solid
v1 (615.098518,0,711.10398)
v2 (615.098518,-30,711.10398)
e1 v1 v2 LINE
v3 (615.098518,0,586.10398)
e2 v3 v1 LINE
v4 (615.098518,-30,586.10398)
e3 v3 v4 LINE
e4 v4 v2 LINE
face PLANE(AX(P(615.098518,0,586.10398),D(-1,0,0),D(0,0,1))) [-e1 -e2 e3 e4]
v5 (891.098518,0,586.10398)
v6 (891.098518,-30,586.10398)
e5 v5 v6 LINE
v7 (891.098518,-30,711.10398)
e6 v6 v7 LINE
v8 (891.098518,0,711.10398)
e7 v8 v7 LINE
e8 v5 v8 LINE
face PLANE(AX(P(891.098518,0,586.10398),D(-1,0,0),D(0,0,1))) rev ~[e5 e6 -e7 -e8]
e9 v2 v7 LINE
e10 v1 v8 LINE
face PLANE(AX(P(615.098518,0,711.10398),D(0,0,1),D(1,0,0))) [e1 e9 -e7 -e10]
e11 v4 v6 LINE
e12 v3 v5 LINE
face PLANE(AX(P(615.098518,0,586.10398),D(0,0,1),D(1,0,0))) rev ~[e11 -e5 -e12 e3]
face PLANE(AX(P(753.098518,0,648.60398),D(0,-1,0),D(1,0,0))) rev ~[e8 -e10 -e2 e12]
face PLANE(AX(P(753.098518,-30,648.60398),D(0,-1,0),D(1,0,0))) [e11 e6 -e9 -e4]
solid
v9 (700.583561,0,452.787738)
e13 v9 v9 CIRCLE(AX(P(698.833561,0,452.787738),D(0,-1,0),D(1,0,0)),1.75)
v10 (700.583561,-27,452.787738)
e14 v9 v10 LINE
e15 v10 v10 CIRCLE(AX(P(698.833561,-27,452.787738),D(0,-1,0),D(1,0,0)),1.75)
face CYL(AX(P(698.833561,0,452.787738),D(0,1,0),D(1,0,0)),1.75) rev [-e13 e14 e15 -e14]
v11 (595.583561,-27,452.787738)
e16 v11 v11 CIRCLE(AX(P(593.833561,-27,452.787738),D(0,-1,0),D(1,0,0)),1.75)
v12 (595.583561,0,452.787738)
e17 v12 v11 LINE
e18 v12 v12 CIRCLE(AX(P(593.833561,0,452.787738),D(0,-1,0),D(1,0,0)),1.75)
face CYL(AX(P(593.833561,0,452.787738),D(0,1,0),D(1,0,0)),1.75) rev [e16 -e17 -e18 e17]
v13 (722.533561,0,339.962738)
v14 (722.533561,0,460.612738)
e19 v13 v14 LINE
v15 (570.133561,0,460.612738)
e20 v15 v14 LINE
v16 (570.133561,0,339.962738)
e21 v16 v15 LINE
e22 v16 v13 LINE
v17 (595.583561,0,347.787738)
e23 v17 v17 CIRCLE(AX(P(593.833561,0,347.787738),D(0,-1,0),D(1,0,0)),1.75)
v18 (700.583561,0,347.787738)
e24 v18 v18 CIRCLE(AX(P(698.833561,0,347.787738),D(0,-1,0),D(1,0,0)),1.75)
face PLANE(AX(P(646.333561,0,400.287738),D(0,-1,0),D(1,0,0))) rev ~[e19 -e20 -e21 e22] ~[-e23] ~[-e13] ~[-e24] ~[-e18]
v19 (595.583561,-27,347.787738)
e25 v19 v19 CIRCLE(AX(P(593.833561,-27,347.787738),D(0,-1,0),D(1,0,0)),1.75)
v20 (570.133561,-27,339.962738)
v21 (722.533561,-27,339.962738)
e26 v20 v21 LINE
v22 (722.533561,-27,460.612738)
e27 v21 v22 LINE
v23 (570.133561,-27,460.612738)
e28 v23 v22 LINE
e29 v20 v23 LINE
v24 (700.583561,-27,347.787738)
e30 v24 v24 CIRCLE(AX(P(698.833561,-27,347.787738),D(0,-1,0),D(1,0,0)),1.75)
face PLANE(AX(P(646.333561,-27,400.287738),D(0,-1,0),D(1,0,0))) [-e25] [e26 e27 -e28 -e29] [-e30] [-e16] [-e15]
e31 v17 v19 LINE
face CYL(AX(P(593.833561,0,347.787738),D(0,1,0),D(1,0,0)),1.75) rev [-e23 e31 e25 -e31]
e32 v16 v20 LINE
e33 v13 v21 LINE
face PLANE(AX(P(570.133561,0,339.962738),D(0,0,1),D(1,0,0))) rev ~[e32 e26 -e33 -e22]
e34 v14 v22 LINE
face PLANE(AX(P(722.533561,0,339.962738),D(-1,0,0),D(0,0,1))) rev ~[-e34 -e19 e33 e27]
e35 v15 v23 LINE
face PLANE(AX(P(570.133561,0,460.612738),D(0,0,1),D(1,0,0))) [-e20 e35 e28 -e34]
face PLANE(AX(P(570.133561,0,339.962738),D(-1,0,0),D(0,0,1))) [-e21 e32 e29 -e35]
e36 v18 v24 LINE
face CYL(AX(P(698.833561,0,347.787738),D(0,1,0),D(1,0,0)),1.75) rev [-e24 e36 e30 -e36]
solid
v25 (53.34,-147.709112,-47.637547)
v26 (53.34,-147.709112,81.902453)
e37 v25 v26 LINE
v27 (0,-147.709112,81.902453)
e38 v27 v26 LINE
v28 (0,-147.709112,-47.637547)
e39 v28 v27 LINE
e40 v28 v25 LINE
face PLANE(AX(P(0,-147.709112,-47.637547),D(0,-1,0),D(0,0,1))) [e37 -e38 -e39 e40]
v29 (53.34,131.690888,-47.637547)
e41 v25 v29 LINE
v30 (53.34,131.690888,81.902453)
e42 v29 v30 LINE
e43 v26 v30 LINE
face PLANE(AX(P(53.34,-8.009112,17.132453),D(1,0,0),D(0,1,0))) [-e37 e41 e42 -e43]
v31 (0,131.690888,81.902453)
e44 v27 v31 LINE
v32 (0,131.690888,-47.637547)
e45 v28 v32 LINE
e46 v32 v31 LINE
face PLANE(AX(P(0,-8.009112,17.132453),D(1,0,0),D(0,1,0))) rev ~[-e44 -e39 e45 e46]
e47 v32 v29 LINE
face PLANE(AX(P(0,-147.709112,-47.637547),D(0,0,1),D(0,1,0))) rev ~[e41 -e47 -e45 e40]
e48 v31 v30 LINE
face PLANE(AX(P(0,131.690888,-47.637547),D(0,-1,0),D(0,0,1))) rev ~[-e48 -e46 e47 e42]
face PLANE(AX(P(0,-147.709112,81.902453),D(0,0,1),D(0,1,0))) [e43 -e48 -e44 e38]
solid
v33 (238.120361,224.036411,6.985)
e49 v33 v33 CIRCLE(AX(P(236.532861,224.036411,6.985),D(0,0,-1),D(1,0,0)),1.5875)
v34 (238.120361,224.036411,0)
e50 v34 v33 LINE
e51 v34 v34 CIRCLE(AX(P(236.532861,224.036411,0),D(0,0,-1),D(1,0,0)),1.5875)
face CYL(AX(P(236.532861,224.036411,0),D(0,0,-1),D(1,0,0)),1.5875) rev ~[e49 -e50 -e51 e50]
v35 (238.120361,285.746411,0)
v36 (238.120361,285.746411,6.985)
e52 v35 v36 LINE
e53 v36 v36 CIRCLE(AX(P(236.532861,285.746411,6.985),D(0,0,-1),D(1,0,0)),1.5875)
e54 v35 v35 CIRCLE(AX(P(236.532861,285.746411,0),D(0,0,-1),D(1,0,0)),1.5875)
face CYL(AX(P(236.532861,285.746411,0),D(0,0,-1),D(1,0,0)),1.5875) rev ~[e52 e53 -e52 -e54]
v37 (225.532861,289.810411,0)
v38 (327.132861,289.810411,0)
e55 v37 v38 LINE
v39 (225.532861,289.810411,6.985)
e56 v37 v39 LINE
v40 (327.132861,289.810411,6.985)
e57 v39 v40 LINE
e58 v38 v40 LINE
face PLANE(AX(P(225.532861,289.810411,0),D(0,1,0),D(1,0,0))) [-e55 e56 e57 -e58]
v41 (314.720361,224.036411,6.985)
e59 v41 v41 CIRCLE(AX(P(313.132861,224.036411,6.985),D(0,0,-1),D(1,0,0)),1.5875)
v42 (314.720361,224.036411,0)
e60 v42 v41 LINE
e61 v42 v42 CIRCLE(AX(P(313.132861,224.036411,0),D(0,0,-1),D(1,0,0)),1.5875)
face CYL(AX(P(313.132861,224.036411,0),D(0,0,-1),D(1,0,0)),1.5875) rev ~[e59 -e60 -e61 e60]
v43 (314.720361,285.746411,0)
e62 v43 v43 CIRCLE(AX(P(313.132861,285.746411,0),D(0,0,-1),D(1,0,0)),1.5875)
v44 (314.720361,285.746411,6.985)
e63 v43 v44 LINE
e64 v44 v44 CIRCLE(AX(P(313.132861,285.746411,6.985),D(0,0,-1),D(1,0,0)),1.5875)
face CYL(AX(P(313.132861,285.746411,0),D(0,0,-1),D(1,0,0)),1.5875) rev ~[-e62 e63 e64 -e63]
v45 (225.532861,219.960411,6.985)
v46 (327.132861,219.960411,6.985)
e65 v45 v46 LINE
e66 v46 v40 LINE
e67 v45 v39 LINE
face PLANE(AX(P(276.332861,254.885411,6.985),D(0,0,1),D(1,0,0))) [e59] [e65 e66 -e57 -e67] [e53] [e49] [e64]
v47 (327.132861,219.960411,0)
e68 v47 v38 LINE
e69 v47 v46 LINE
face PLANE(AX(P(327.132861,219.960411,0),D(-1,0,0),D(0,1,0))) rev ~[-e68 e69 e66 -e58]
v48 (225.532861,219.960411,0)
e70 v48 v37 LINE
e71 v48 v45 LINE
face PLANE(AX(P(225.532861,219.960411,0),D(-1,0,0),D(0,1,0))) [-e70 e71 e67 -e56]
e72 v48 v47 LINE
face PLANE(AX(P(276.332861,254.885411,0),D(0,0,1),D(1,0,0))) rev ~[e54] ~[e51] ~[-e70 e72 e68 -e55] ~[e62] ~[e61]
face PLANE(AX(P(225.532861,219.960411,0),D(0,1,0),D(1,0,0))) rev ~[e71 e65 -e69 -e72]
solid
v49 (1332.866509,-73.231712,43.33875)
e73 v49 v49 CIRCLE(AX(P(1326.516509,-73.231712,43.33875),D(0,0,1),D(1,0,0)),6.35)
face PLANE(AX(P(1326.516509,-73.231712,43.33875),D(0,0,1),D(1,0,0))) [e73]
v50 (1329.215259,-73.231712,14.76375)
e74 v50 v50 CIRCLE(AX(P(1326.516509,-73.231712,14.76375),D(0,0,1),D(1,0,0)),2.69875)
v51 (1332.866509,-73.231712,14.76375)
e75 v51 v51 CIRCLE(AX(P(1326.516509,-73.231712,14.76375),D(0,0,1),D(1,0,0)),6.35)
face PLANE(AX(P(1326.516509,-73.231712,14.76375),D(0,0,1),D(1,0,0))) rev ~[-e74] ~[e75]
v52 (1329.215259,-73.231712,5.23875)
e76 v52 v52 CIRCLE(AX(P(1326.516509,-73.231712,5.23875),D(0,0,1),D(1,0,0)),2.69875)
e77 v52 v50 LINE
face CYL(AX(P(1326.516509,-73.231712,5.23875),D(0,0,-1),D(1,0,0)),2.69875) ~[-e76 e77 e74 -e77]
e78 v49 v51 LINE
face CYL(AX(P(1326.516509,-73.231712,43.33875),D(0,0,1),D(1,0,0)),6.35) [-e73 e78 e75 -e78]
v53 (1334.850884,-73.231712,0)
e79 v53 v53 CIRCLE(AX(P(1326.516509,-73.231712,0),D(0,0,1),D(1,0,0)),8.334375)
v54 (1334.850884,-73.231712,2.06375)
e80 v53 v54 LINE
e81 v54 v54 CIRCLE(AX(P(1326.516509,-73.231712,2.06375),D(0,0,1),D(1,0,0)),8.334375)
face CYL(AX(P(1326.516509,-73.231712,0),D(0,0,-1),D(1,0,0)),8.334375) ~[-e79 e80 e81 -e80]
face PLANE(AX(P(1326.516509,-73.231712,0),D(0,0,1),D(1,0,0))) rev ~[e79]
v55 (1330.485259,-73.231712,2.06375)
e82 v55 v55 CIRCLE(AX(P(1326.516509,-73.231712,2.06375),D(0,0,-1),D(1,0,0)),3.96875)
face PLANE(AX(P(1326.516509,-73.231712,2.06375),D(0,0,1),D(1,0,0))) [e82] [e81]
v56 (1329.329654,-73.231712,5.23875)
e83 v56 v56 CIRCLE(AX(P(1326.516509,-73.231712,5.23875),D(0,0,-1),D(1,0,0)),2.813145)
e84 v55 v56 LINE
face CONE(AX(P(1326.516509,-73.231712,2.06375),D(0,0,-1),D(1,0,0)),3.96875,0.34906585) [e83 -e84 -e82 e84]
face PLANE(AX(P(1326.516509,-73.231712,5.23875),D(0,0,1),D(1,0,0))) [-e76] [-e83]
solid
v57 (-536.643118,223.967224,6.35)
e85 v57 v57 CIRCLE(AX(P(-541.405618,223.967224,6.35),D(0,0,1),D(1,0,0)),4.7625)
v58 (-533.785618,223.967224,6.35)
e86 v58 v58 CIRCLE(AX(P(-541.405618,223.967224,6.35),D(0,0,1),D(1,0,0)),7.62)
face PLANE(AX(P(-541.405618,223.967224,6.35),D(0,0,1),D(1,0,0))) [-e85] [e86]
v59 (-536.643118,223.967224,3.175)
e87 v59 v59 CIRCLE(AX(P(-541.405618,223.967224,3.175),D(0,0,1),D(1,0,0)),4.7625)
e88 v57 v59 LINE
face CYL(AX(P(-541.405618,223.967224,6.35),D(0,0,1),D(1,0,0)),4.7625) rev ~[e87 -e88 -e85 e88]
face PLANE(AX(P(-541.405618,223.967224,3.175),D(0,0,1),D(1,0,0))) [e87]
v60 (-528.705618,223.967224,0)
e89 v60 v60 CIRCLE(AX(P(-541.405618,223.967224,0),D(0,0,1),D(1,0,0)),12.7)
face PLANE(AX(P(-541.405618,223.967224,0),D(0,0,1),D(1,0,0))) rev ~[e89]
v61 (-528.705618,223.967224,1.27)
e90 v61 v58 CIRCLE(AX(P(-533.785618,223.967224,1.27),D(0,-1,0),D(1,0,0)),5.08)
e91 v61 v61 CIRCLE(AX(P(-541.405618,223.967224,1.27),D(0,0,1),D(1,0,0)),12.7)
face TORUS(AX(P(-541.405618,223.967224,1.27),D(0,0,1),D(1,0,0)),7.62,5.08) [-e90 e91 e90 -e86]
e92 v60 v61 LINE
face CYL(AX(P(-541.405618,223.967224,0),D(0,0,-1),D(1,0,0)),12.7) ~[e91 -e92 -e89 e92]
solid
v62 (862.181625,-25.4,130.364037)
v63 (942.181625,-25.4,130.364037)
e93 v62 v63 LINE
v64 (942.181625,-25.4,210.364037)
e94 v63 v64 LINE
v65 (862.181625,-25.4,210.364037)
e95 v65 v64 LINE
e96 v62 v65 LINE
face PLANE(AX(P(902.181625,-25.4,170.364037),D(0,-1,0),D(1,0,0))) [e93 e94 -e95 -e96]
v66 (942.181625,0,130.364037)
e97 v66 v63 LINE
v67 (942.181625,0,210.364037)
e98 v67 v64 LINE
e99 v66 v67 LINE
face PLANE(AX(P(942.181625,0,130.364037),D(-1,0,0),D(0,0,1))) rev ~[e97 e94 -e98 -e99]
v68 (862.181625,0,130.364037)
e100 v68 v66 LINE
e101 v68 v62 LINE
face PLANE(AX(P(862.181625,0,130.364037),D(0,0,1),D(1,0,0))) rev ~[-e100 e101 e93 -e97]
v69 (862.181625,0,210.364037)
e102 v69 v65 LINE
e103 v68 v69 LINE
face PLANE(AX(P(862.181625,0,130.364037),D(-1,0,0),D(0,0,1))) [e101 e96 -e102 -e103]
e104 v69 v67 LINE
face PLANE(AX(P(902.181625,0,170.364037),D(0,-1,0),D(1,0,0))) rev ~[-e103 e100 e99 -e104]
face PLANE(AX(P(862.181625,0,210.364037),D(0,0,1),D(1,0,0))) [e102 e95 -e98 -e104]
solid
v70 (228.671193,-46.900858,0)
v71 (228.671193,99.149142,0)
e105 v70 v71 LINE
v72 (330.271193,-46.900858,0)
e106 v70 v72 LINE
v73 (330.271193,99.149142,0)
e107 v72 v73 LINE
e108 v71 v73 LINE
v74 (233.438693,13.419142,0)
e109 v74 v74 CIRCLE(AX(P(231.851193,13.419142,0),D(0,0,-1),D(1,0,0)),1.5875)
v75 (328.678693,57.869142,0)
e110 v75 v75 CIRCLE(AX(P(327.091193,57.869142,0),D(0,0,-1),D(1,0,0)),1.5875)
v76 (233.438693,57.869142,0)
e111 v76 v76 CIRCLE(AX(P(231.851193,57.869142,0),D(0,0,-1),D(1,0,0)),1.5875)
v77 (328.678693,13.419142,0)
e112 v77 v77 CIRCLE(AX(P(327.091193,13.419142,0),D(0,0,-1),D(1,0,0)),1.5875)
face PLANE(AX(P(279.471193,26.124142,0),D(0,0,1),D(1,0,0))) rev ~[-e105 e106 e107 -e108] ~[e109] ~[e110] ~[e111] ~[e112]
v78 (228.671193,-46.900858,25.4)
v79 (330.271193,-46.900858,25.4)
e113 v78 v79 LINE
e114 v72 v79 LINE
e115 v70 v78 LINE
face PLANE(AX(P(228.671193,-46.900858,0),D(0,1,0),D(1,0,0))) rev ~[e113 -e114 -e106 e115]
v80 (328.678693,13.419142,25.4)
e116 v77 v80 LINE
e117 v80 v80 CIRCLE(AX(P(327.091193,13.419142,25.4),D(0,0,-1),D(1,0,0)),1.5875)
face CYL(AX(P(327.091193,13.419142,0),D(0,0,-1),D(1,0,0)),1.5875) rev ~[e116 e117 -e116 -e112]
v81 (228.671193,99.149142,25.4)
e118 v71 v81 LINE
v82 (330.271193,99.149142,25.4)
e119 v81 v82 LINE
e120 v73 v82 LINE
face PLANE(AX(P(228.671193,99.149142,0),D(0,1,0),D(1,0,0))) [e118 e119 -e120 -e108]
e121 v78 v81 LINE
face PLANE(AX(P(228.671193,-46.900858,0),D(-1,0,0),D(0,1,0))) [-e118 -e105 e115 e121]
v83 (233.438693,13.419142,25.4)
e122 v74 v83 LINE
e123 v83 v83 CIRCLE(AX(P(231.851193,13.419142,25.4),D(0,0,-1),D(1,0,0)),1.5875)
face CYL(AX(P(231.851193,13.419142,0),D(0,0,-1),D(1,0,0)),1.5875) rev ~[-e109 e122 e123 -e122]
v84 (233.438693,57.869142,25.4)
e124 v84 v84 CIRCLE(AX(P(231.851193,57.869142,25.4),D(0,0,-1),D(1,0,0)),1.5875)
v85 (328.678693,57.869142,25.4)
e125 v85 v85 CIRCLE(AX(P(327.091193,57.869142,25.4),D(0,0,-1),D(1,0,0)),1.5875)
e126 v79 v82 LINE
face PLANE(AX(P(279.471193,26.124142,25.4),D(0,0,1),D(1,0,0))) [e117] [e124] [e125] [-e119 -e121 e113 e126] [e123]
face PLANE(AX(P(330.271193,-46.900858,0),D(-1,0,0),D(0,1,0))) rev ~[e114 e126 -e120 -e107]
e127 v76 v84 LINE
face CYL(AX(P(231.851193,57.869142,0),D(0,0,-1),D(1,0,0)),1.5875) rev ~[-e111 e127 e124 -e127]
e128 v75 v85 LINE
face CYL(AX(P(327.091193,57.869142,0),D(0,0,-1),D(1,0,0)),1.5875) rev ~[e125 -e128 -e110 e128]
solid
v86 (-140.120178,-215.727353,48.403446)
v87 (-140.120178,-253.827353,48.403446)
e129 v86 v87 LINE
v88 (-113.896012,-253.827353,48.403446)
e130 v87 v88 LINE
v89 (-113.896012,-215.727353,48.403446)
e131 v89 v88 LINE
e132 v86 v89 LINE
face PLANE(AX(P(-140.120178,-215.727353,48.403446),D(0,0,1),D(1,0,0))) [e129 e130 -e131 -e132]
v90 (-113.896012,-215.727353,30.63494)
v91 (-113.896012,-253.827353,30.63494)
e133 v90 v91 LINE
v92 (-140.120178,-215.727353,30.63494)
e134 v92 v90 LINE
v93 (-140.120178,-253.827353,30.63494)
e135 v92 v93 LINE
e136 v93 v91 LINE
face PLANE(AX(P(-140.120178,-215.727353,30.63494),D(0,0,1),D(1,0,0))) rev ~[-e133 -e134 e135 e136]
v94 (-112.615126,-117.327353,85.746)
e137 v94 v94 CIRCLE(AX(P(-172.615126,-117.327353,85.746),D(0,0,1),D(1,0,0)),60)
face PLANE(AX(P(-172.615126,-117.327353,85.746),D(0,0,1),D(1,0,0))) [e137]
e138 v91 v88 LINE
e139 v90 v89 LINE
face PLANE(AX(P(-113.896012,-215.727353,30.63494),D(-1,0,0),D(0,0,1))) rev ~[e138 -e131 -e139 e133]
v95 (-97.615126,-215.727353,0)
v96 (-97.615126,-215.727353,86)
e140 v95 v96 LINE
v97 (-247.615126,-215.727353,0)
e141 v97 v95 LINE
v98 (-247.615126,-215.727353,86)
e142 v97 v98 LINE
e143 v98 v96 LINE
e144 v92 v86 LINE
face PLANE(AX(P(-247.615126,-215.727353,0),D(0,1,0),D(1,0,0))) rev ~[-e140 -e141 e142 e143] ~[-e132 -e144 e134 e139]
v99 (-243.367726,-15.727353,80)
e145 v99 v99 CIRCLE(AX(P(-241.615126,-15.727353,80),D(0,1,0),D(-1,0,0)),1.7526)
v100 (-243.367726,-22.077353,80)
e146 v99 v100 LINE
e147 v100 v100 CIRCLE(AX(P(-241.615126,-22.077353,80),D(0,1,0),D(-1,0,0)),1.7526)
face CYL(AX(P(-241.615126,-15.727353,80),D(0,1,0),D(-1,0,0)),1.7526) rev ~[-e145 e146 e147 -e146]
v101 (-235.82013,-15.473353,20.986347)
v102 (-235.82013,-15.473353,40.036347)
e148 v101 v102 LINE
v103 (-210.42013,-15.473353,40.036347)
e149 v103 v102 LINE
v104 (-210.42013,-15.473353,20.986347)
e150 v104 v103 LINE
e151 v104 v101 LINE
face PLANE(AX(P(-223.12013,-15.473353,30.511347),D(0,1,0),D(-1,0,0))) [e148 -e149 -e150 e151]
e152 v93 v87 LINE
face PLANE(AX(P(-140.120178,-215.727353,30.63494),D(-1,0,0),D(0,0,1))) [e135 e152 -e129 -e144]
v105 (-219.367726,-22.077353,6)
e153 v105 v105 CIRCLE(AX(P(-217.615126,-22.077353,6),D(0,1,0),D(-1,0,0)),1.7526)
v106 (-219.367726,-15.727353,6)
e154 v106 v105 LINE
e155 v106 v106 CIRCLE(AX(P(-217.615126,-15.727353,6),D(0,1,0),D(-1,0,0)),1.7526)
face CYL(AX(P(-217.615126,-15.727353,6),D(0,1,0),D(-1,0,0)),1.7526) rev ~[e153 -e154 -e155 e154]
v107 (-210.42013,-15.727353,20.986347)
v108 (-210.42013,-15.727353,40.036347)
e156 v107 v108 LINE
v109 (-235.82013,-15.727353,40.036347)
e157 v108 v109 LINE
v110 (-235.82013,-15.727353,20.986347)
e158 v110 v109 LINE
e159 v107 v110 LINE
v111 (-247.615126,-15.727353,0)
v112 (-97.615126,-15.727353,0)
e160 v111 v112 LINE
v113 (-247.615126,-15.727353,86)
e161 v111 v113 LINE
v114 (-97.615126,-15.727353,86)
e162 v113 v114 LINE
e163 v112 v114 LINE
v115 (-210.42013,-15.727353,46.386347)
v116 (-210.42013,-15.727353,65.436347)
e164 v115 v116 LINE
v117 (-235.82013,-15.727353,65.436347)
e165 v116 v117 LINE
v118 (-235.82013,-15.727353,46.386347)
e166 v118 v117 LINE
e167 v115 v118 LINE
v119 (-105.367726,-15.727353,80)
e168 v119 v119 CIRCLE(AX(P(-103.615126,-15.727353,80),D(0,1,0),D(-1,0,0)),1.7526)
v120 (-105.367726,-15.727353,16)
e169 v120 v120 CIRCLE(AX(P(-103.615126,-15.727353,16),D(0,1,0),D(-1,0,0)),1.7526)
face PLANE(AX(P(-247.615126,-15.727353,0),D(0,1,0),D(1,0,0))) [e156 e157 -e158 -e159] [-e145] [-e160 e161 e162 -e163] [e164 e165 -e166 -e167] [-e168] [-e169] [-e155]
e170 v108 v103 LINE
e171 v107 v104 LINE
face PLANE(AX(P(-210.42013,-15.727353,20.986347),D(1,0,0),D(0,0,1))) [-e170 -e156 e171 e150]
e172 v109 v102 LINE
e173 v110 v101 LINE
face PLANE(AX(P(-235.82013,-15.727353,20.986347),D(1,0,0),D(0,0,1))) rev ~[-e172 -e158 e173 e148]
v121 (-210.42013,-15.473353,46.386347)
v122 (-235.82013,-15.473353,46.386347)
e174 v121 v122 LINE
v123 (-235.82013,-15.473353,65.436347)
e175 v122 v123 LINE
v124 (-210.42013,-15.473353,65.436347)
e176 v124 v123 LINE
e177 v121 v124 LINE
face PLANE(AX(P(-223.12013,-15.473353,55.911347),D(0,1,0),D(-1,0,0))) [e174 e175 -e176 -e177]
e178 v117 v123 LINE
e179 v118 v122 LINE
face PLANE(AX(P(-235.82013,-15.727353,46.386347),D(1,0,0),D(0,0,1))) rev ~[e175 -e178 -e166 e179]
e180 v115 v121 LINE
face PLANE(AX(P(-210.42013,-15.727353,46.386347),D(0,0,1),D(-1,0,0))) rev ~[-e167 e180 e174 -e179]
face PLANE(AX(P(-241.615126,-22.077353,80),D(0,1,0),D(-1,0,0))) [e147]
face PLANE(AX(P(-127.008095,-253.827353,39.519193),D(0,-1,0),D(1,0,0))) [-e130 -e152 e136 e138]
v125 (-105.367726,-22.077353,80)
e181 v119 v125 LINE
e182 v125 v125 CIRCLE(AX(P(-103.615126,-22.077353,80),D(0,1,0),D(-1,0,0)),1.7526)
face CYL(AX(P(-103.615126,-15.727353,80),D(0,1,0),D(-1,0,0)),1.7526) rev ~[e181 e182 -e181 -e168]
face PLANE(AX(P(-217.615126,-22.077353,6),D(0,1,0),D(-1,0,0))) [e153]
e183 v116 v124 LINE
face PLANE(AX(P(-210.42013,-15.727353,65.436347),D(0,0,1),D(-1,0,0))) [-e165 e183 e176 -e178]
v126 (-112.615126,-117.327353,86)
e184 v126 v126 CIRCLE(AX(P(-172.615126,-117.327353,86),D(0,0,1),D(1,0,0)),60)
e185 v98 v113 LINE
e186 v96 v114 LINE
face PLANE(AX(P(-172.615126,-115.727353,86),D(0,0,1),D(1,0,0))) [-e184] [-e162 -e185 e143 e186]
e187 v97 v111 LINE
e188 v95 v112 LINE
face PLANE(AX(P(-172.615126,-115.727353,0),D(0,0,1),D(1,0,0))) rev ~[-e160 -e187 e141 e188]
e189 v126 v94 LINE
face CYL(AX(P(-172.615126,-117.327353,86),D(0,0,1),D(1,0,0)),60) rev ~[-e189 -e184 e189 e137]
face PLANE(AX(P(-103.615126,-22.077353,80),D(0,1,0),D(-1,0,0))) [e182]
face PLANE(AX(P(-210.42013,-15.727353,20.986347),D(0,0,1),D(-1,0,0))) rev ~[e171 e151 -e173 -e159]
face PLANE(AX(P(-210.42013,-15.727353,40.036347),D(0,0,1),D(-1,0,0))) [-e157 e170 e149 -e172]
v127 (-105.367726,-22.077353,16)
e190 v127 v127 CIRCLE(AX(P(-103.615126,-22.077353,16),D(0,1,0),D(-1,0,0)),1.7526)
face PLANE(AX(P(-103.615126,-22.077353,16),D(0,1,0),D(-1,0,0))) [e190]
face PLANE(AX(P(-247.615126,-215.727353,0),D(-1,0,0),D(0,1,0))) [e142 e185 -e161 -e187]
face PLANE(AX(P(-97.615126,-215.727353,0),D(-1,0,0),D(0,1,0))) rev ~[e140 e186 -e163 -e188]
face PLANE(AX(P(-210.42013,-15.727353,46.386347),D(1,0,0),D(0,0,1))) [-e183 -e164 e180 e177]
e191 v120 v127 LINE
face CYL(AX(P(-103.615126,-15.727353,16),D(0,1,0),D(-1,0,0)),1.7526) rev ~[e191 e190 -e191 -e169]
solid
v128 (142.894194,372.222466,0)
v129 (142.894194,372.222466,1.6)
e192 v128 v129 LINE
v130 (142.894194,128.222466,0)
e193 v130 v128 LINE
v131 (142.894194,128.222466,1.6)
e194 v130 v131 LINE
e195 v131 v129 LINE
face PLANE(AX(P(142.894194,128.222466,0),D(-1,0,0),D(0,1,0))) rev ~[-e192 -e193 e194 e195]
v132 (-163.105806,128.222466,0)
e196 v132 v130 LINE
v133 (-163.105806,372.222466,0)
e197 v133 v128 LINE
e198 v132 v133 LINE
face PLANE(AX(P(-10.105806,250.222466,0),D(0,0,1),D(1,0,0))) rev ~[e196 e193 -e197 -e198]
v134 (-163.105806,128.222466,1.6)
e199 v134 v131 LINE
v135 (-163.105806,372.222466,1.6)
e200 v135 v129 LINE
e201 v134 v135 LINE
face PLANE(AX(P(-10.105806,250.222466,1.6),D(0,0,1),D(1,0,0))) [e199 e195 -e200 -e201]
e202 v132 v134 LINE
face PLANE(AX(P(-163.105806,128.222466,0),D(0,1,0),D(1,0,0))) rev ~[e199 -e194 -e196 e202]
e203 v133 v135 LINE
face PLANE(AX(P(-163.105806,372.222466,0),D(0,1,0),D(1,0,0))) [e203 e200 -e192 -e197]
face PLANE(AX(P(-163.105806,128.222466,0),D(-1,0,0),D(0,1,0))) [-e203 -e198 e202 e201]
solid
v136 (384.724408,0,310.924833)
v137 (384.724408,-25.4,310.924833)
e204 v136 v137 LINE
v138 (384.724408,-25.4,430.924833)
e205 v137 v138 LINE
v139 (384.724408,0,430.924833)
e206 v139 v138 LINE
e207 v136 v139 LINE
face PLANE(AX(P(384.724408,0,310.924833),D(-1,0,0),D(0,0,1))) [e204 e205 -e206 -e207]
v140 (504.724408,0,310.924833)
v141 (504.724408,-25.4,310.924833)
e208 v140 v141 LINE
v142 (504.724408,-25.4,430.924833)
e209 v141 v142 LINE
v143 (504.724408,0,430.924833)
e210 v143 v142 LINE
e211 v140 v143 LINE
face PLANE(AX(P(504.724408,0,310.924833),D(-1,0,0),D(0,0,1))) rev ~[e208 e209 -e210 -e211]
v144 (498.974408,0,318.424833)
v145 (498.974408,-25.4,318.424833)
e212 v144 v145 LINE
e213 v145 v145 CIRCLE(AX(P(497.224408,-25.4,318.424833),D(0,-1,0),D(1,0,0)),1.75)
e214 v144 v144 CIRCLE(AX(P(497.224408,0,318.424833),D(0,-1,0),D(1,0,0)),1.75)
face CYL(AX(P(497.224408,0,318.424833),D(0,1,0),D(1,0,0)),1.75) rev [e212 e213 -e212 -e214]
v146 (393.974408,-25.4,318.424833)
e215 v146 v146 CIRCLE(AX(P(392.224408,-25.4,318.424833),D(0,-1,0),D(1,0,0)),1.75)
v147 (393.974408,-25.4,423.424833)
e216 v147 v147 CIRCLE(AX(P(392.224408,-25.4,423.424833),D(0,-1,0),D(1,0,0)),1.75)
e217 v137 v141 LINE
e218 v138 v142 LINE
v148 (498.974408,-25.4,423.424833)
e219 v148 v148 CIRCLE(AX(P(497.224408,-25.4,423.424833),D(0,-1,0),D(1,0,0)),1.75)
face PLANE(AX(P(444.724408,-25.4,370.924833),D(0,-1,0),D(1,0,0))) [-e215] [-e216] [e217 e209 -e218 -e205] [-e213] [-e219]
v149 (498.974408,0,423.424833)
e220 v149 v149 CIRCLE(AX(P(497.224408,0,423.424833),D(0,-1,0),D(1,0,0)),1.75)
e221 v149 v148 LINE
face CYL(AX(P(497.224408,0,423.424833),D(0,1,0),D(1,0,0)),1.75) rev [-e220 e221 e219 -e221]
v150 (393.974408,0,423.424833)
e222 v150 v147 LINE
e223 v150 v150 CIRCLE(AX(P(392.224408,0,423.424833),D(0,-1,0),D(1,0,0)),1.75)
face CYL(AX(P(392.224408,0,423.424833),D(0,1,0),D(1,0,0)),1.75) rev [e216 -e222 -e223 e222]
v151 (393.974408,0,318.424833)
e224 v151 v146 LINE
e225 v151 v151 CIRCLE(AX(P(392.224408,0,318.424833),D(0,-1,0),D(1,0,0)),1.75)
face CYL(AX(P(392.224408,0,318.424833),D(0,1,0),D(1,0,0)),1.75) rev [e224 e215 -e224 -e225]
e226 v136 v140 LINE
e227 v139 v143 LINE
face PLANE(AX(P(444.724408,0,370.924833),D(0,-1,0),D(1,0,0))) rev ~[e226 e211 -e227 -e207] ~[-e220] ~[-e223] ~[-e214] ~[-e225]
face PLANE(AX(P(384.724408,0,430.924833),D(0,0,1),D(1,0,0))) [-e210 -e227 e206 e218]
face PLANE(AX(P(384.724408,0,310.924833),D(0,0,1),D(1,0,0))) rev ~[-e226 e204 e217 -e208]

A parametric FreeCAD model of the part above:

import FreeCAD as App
import Part
import Sketcher
from FreeCAD import Vector
Q = App.Units.Quantity


def edges_at(feature, points):
    """Names of the edges that pass closest to the given points."""
    edges = feature.Shape.Edges
    near = lambda p: min(range(len(edges)), key=lambda i: edges[i].distToShape(Part.Vertex(*p))[0])
    return sorted({f"Edge{near(p) + 1}" for p in points})

doc = App.newDocument("Part")
body = doc.addObject("PartDesign::Body", "Body")

# Sketch on XY plane
sketch1 = body.newObject("Sketcher::SketchObject", "Sketch")
sketch1.AttachmentSupport = (doc.getObject("XY_Plane"), [""])
sketch1.MapMode = "FlatFace"
sketch1.addGeometry([
    Part.LineSegment(Vector(-163.105806, 372.222466, 0), Vector(-163.105806, 128.222466, 0)),
    Part.LineSegment(Vector(-163.105806, 128.222466, 0), Vector(142.894194, 128.222466, 0)),
    Part.LineSegment(Vector(142.894194, 128.222466, 0), Vector(142.894194, 372.222466, 0)),
    Part.LineSegment(Vector(142.894194, 372.222466, 0), Vector(-163.105806, 372.222466, 0)),
], False)
sketch1.addConstraint([
    Sketcher.Constraint("Coincident", 0, 2, 1, 1),
    Sketcher.Constraint("Coincident", 1, 2, 2, 1),
    Sketcher.Constraint("Coincident", 2, 2, 3, 1),
    Sketcher.Constraint("Coincident", 3, 2, 0, 1),
    Sketcher.Constraint("Vertical", 0),
    Sketcher.Constraint("Horizontal", 1),
    Sketcher.Constraint("Vertical", 2),
    Sketcher.Constraint("Horizontal", 3),
    Sketcher.Constraint("DistanceX", 1, 1, 1, 2, Q("306 mm")),
    Sketcher.Constraint("DistanceY", 0, 2, 0, 1, Q("244 mm")),
    Sketcher.Constraint("DistanceX", 0, 2, -1, 1, Q("163.105806 mm")),
    Sketcher.Constraint("DistanceY", -1, 1, 0, 2, Q("128.222466 mm")),
])
pad1 = body.newObject("PartDesign::Pad", "Pad")
pad1.Profile = sketch1
pad1.Length = 1.6
body2 = doc.addObject("PartDesign::Body", "Body001")

# Sketch on YZ plane
sketch2 = body2.newObject("Sketcher::SketchObject", "Sketch001")
sketch2.AttachmentSupport = (doc.getObject("YZ_Plane001"), [""])
sketch2.MapMode = "FlatFace"
sketch2.addGeometry([
    Part.LineSegment(Vector(-147.709112, 81.902453, 0), Vector(-147.709112, -47.637547, 0)),
    Part.LineSegment(Vector(-147.709112, -47.637547, 0), Vector(131.690888, -47.637547, 0)),
    Part.LineSegment(Vector(131.690888, -47.637547, 0), Vector(131.690888, 81.902453, 0)),
    Part.LineSegment(Vector(131.690888, 81.902453, 0), Vector(-147.709112, 81.902453, 0)),
], False)
sketch2.addConstraint([
    Sketcher.Constraint("Coincident", 0, 2, 1, 1),
    Sketcher.Constraint("Coincident", 1, 2, 2, 1),
    Sketcher.Constraint("Coincident", 2, 2, 3, 1),
    Sketcher.Constraint("Coincident", 3, 2, 0, 1),
    Sketcher.Constraint("Vertical", 0),
    Sketcher.Constraint("Horizontal", 1),
    Sketcher.Constraint("Vertical", 2),
    Sketcher.Constraint("Horizontal", 3),
    Sketcher.Constraint("DistanceX", 1, 1, 1, 2, Q("11 in")),
    Sketcher.Constraint("DistanceY", 0, 2, 0, 1, Q("5.1 in")),
    Sketcher.Constraint("DistanceX", 0, 2, -1, 1, Q("147.709112 mm")),
    Sketcher.Constraint("DistanceY", 0, 2, -1, 1, Q("47.637547 mm")),
])
pad2 = body2.newObject("PartDesign::Pad", "Pad001")
pad2.Profile = sketch2
pad2.Length = Q("2.1 in")
body3 = doc.addObject("PartDesign::Body", "Body002")

# Sketch on XY plane
sketch3 = body3.newObject("Sketcher::SketchObject", "Sketch002")
sketch3.AttachmentSupport = (doc.getObject("XY_Plane002"), [""])
sketch3.MapMode = "FlatFace"
sketch3.addGeometry([
    Part.LineSegment(Vector(-247.615126, -15.727353, 0), Vector(-247.615126, -215.727353, 0)),
    Part.LineSegment(Vector(-247.615126, -215.727353, 0), Vector(-97.615126, -215.727353, 0)),
    Part.LineSegment(Vector(-97.615126, -215.727353, 0), Vector(-97.615126, -15.727353, 0)),
    Part.LineSegment(Vector(-97.615126, -15.727353, 0), Vector(-247.615126, -15.727353, 0)),
], False)
sketch3.addConstraint([
    Sketcher.Constraint("Coincident", 0, 2, 1, 1),
    Sketcher.Constraint("Coincident", 1, 2, 2, 1),
    Sketcher.Constraint("Coincident", 2, 2, 3, 1),
    Sketcher.Constraint("Coincident", 3, 2, 0, 1),
    Sketcher.Constraint("Vertical", 0),
    Sketcher.Constraint("Horizontal", 1),
    Sketcher.Constraint("Vertical", 2),
    Sketcher.Constraint("Horizontal", 3),
    Sketcher.Constraint("DistanceX", 1, 1, 1, 2, Q("150 mm")),
    Sketcher.Constraint("DistanceY", 0, 2, 0, 1, Q("200 mm")),
    Sketcher.Constraint("DistanceX", 0, 2, -1, 1, Q("247.615126 mm")),
    Sketcher.Constraint("DistanceY", 0, 2, -1, 1, Q("215.727353 mm")),
])
pad3 = body3.newObject("PartDesign::Pad", "Pad002")
pad3.Profile = sketch3
pad3.Length = 86

# Sketch on XZ plane
sketch4 = body3.newObject("Sketcher::SketchObject", "Sketch003")
sketch4.AttachmentSupport = (doc.getObject("XZ_Plane002"), [""])
sketch4.MapMode = "FlatFace"
sketch4.AttachmentOffset = App.Placement(Vector(0, 0, 15.727353), App.Rotation())
sketch4.addGeometry([
    Part.Circle(Vector(-103.615126, 80, 0), Vector(0, 0, 1), 1.7526),
    Part.Circle(Vector(-103.615126, 16, 0), Vector(0, 0, 1), 1.7526),
    Part.Circle(Vector(-217.615126, 6, 0), Vector(0, 0, 1), 1.7526),
    Part.Circle(Vector(-241.615126, 80, 0), Vector(0, 0, 1), 1.7526),
], False)
sketch4.addConstraint([
    Sketcher.Constraint("Equal", 0, 1),
    Sketcher.Constraint("Equal", 1, 2),
    Sketcher.Constraint("Equal", 2, 3),
    Sketcher.Constraint("Horizontal", 0, 3, 3, 3),
    Sketcher.Constraint("Vertical", 0, 3, 1, 3),
    Sketcher.Constraint("Diameter", 0, Q("0.138 in")),
    Sketcher.Constraint("DistanceY", -1, 1, 0, 3, Q("80 mm")),
    Sketcher.Constraint("DistanceY", -1, 1, 1, 3, Q("16 mm")),
    Sketcher.Constraint("DistanceY", -1, 1, 2, 3, Q("6 mm")),
    Sketcher.Constraint("DistanceX", 2, 3, 1, 3, Q("114 mm")),
    Sketcher.Constraint("DistanceX", 3, 3, 2, 3, Q("24 mm")),
    Sketcher.Constraint("DistanceX", 0, 3, -1, 1, Q("103.615126 mm")),
])
pocket1 = body3.newObject("PartDesign::Pocket", "Pocket")
pocket1.Profile = sketch4
pocket1.Length = Q("0.25 in")
pocket1.Reversed = True

# Sketch on XY plane
sketch5 = body3.newObject("Sketcher::SketchObject", "Sketch004")
sketch5.AttachmentSupport = (doc.getObject("XY_Plane002"), [""])
sketch5.MapMode = "FlatFace"
sketch5.AttachmentOffset = App.Placement(Vector(0, 0, 86), App.Rotation())
sketch5.addGeometry(Part.Circle(Vector(-172.615126, -117.327353, 0), Vector(0, 0, 1), 60), False)
sketch5.addConstraint([
    Sketcher.Constraint("Diameter", 0, Q("120 mm")),
    Sketcher.Constraint("DistanceX", 0, 3, -1, 1, Q("172.615126 mm")),
    Sketcher.Constraint("DistanceY", 0, 3, -1, 1, Q("117.327353 mm")),
])
pocket2 = body3.newObject("PartDesign::Pocket", "Pocket001")
pocket2.Profile = sketch5
pocket2.Length = Q("0.01 in")

# Sketch on XZ plane
sketch6 = body3.newObject("Sketcher::SketchObject", "Sketch005")
sketch6.AttachmentSupport = (doc.getObject("XZ_Plane002"), [""])
sketch6.MapMode = "FlatFace"
sketch6.AttachmentOffset = App.Placement(Vector(0, 0, 15.727353), App.Rotation())
sketch6.addGeometry([
    Part.LineSegment(Vector(-210.42013, 40.036347, 0), Vector(-210.42013, 20.986347, 0)),  # 0
    Part.LineSegment(Vector(-210.42013, 20.986347, 0), Vector(-235.82013, 20.986347, 0)),  # 1
    Part.LineSegment(Vector(-235.82013, 20.986347, 0), Vector(-235.82013, 40.036347, 0)),  # 2
    Part.LineSegment(Vector(-235.82013, 40.036347, 0), Vector(-210.42013, 40.036347, 0)),  # 3
    Part.LineSegment(Vector(-210.42013, 65.436347, 0), Vector(-210.42013, 46.386347, 0)),  # 4
    Part.LineSegment(Vector(-210.42013, 46.386347, 0), Vector(-235.82013, 46.386347, 0)),  # 5
    Part.LineSegment(Vector(-235.82013, 46.386347, 0), Vector(-235.82013, 65.436347, 0)),  # 6
    Part.LineSegment(Vector(-235.82013, 65.436347, 0), Vector(-210.42013, 65.436347, 0)),  # 7
], False)
sketch6.addConstraint([
    Sketcher.Constraint("Coincident", 0, 2, 1, 1),
    Sketcher.Constraint("Coincident", 1, 2, 2, 1),
    Sketcher.Constraint("Coincident", 2, 2, 3, 1),
    Sketcher.Constraint("Coincident", 3, 2, 0, 1),
    Sketcher.Constraint("Coincident", 4, 2, 5, 1),
    Sketcher.Constraint("Coincident", 5, 2, 6, 1),
    Sketcher.Constraint("Coincident", 6, 2, 7, 1),
    Sketcher.Constraint("Coincident", 7, 2, 4, 1),
    Sketcher.Constraint("Vertical", 0),
    Sketcher.Constraint("Horizontal", 1),
    Sketcher.Constraint("Vertical", 2),
    Sketcher.Constraint("Horizontal", 3),
    Sketcher.Constraint("Vertical", 4),
    Sketcher.Constraint("Horizontal", 5),
    Sketcher.Constraint("Vertical", 6),
    Sketcher.Constraint("Horizontal", 7),
    Sketcher.Constraint("Vertical", 3, 2, 4, 2),
    Sketcher.Constraint("Vertical", 2, 2, 5, 2),
    Sketcher.Constraint("Equal", 2, 4),
    Sketcher.Constraint("DistanceX", 1, 2, 1, 1, Q("1 in")),
    Sketcher.Constraint("DistanceY", 0, 2, 4, 2, Q("1 in")),
    Sketcher.Constraint("DistanceY", 0, 2, 0, 1, Q("0.75 in")),
    Sketcher.Constraint("DistanceX", 0, 2, -1, 1, Q("210.42013 mm")),
    Sketcher.Constraint("DistanceY", -1, 1, 0, 2, Q("20.986347 mm")),
])
pad4 = body3.newObject("PartDesign::Pad", "Pad003")
pad4.Profile = sketch6
pad4.Length = Q("0.01 in")
pad4.Reversed = True

# Sketch on XZ plane
sketch7 = body3.newObject("Sketcher::SketchObject", "Sketch006")
sketch7.AttachmentSupport = (doc.getObject("XZ_Plane002"), [""])
sketch7.MapMode = "FlatFace"
sketch7.AttachmentOffset = App.Placement(Vector(0, 0, 215.727353), App.Rotation())
sketch7.addGeometry([
    Part.LineSegment(Vector(-140.120178, 48.403446, 0), Vector(-140.120178, 30.63494, 0)),
    Part.LineSegment(Vector(-140.120178, 30.63494, 0), Vector(-113.896012, 30.63494, 0)),
    Part.LineSegment(Vector(-113.896012, 30.63494, 0), Vector(-113.896012, 48.403446, 0)),
    Part.LineSegment(Vector(-113.896012, 48.403446, 0), Vector(-140.120178, 48.403446, 0)),
], False)
sketch7.addConstraint([
    Sketcher.Constraint("Coincident", 0, 2, 1, 1),
    Sketcher.Constraint("Coincident", 1, 2, 2, 1),
    Sketcher.Constraint("Coincident", 2, 2, 3, 1),
    Sketcher.Constraint("Coincident", 3, 2, 0, 1),
    Sketcher.Constraint("Vertical", 0),
    Sketcher.Constraint("Horizontal", 1),
    Sketcher.Constraint("Vertical", 2),
    Sketcher.Constraint("Horizontal", 3),
    Sketcher.Constraint("DistanceY", -1, 1, 0, 2, Q("1.2061 in")),
    Sketcher.Constraint("DistanceX", 1, 1, 1, 2, Q("26.224166 mm")),
    Sketcher.Constraint("DistanceY", 0, 2, 0, 1, Q("17.768506 mm")),
    Sketcher.Constraint("DistanceX", 0, 2, -1, 1, Q("140.120178 mm")),
])
pad5 = body3.newObject("PartDesign::Pad", "Pad004")
pad5.Profile = sketch7
pad5.Length = Q("1.5 in")
body4 = doc.addObject("PartDesign::Body", "Body003")

# Sketch on XZ plane
sketch8 = body4.newObject("Sketcher::SketchObject", "Sketch007")
sketch8.AttachmentSupport = (doc.getObject("XZ_Plane003"), [""])
sketch8.MapMode = "FlatFace"
sketch8.addGeometry([
    Part.LineSegment(Vector(384.724408, 430.924833, 0), Vector(384.724408, 310.924833, 0)),  # 0
    Part.LineSegment(Vector(384.724408, 310.924833, 0), Vector(504.724408, 310.924833, 0)),  # 1
    Part.LineSegment(Vector(504.724408, 310.924833, 0), Vector(504.724408, 430.924833, 0)),  # 2
    Part.LineSegment(Vector(504.724408, 430.924833, 0), Vector(384.724408, 430.924833, 0)),  # 3
    Part.Circle(Vector(392.224408, 318.424833, 0), Vector(0, 0, 1), 1.75),  # 4
    Part.Circle(Vector(497.224408, 318.424833, 0), Vector(0, 0, 1), 1.75),  # 5
    Part.Circle(Vector(392.224408, 423.424833, 0), Vector(0, 0, 1), 1.75),  # 6
    Part.Circle(Vector(497.224408, 423.424833, 0), Vector(0, 0, 1), 1.75),  # 7
], False)
sketch8.addConstraint([
    Sketcher.Constraint("Coincident", 0, 2, 1, 1),
    Sketcher.Constraint("Coincident", 1, 2, 2, 1),
    Sketcher.Constraint("Coincident", 2, 2, 3, 1),
    Sketcher.Constraint("Coincident", 3, 2, 0, 1),
    Sketcher.Constraint("Vertical", 0),
    Sketcher.Constraint("Horizontal", 1),
    Sketcher.Constraint("Vertical", 2),
    Sketcher.Constraint("Horizontal", 3),
    Sketcher.Constraint("Equal", 4, 5),
    Sketcher.Constraint("Equal", 5, 6),
    Sketcher.Constraint("Equal", 6, 7),
    Sketcher.Constraint("Horizontal", 4, 3, 5, 3),
    Sketcher.Constraint("Horizontal", 6, 3, 7, 3),
    Sketcher.Constraint("Vertical", 4, 3, 6, 3),
    Sketcher.Constraint("Vertical", 5, 3, 7, 3),
    Sketcher.Constraint("Equal", 3, 0),
    Sketcher.Constraint("Diameter", 4, Q("3.5 mm")),
    Sketcher.Constraint("DistanceX", 1, 1, 1, 2, Q("120 mm")),
    Sketcher.Constraint("DistanceX", 4, 3, 5, 3, Q("105 mm")),
    Sketcher.Constraint("DistanceY", 4, 3, 6, 3, Q("105 mm")),
    Sketcher.Constraint("DistanceX", 0, 2, 4, 3, Q("7.5 mm")),
    Sketcher.Constraint("DistanceY", 0, 2, 4, 3, Q("7.5 mm")),
    Sketcher.Constraint("DistanceX", -1, 1, 4, 3, Q("392.224408 mm")),
    Sketcher.Constraint("DistanceY", -1, 1, 4, 3, Q("318.424833 mm")),
])
pad6 = body4.newObject("PartDesign::Pad", "Pad005")
pad6.Profile = sketch8
pad6.Length = Q("1 in")
body5 = doc.addObject("PartDesign::Body", "Body004")

# Sketch on XZ plane
sketch9 = body5.newObject("Sketcher::SketchObject", "Sketch008")
sketch9.AttachmentSupport = (doc.getObject("XZ_Plane004"), [""])
sketch9.MapMode = "FlatFace"
sketch9.addGeometry([
    Part.LineSegment(Vector(862.181625, 210.364037, 0), Vector(862.181625, 130.364037, 0)),
    Part.LineSegment(Vector(862.181625, 130.364037, 0), Vector(942.181625, 130.364037, 0)),
    Part.LineSegment(Vector(942.181625, 130.364037, 0), Vector(942.181625, 210.364037, 0)),
    Part.LineSegment(Vector(942.181625, 210.364037, 0), Vector(862.181625, 210.364037, 0)),
], False)
sketch9.addConstraint([
    Sketcher.Constraint("Coincident", 0, 2, 1, 1),
    Sketcher.Constraint("Coincident", 1, 2, 2, 1),
    Sketcher.Constraint("Coincident", 2, 2, 3, 1),
    Sketcher.Constraint("Coincident", 3, 2, 0, 1),
    Sketcher.Constraint("Vertical", 0),
    Sketcher.Constraint("Horizontal", 1),
    Sketcher.Constraint("Vertical", 2),
    Sketcher.Constraint("Horizontal", 3),
    Sketcher.Constraint("Equal", 3, 0),
    Sketcher.Constraint("DistanceX", 1, 1, 1, 2, Q("80 mm")),
    Sketcher.Constraint("DistanceX", -1, 1, 0, 2, Q("862.181625 mm")),
    Sketcher.Constraint("DistanceY", -1, 1, 0, 2, Q("130.364037 mm")),
])
pad7 = body5.newObject("PartDesign::Pad", "Pad006")
pad7.Profile = sketch9
pad7.Length = Q("1 in")
body6 = doc.addObject("PartDesign::Body", "Body005")

# Sketch on XZ plane
sketch10 = body6.newObject("Sketcher::SketchObject", "Sketch009")
sketch10.AttachmentSupport = (doc.getObject("XZ_Plane005"), [""])
sketch10.MapMode = "FlatFace"
sketch10.addGeometry([
    Part.LineSegment(Vector(570.133561, 460.612738, 0), Vector(570.133561, 339.962738, 0)),  # 0
    Part.LineSegment(Vector(570.133561, 339.962738, 0), Vector(722.533561, 339.962738, 0)),  # 1
    Part.LineSegment(Vector(722.533561, 339.962738, 0), Vector(722.533561, 460.612738, 0)),  # 2
    Part.LineSegment(Vector(722.533561, 460.612738, 0), Vector(570.133561, 460.612738, 0)),  # 3
    Part.Circle(Vector(593.833561, 347.787738, 0), Vector(0, 0, 1), 1.75),  # 4
    Part.Circle(Vector(698.833561, 347.787738, 0), Vector(0, 0, 1), 1.75),  # 5
    Part.Circle(Vector(593.833561, 452.787738, 0), Vector(0, 0, 1), 1.75),  # 6
    Part.Circle(Vector(698.833561, 452.787738, 0), Vector(0, 0, 1), 1.75),  # 7
], False)
sketch10.addConstraint([
    Sketcher.Constraint("Coincident", 0, 2, 1, 1),
    Sketcher.Constraint("Coincident", 1, 2, 2, 1),
    Sketcher.Constraint("Coincident", 2, 2, 3, 1),
    Sketcher.Constraint("Coincident", 3, 2, 0, 1),
    Sketcher.Constraint("Vertical", 0),
    Sketcher.Constraint("Horizontal", 1),
    Sketcher.Constraint("Vertical", 2),
    Sketcher.Constraint("Horizontal", 3),
    Sketcher.Constraint("Equal", 4, 5),
    Sketcher.Constraint("Equal", 5, 6),
    Sketcher.Constraint("Equal", 6, 7),
    Sketcher.Constraint("Horizontal", 4, 3, 5, 3),
    Sketcher.Constraint("Horizontal", 6, 3, 7, 3),
    Sketcher.Constraint("Vertical", 4, 3, 6, 3),
    Sketcher.Constraint("Vertical", 5, 3, 7, 3),
    Sketcher.Constraint("DistanceX", 1, 1, 1, 2, Q("6 in")),
    Sketcher.Constraint("DistanceY", 0, 2, 0, 1, Q("4.75 in")),
    Sketcher.Constraint("Diameter", 4, Q("3.5 mm")),
    Sketcher.Constraint("DistanceX", 4, 3, 5, 3, Q("105 mm")),
    Sketcher.Constraint("DistanceY", 4, 3, 6, 3, Q("105 mm")),
    Sketcher.Constraint("DistanceX", 0, 2, 4, 3, Q("23.7 mm")),
    Sketcher.Constraint("DistanceY", 0, 2, 4, 3, Q("7.825 mm")),
    Sketcher.Constraint("DistanceX", -1, 1, 4, 3, Q("593.833561 mm")),
    Sketcher.Constraint("DistanceY", -1, 1, 4, 3, Q("347.787738 mm")),
])
pad8 = body6.newObject("PartDesign::Pad", "Pad007")
pad8.Profile = sketch10
pad8.Length = 27
body7 = doc.addObject("PartDesign::Body", "Body006")

# Sketch on XY plane
sketch11 = body7.newObject("Sketcher::SketchObject", "Sketch010")
sketch11.AttachmentSupport = (doc.getObject("XY_Plane006"), [""])
sketch11.MapMode = "FlatFace"
sketch11.addGeometry([
    Part.LineSegment(Vector(228.671193, 99.149142, 0), Vector(228.671193, -46.900858, 0)),
    Part.LineSegment(Vector(228.671193, -46.900858, 0), Vector(330.271193, -46.900858, 0)),
    Part.LineSegment(Vector(330.271193, -46.900858, 0), Vector(330.271193, 99.149142, 0)),
    Part.LineSegment(Vector(330.271193, 99.149142, 0), Vector(228.671193, 99.149142, 0)),
], False)
sketch11.addConstraint([
    Sketcher.Constraint("Coincident", 0, 2, 1, 1),
    Sketcher.Constraint("Coincident", 1, 2, 2, 1),
    Sketcher.Constraint("Coincident", 2, 2, 3, 1),
    Sketcher.Constraint("Coincident", 3, 2, 0, 1),
    Sketcher.Constraint("Vertical", 0),
    Sketcher.Constraint("Horizontal", 1),
    Sketcher.Constraint("Vertical", 2),
    Sketcher.Constraint("Horizontal", 3),
    Sketcher.Constraint("DistanceX", 1, 1, 1, 2, Q("4 in")),
    Sketcher.Constraint("DistanceY", 0, 2, 0, 1, Q("5.75 in")),
    Sketcher.Constraint("DistanceX", -1, 1, 0, 2, Q("228.671193 mm")),
    Sketcher.Constraint("DistanceY", 0, 2, -1, 1, Q("46.900858 mm")),
])
pad9 = body7.newObject("PartDesign::Pad", "Pad008")
pad9.Profile = sketch11
pad9.Length = Q("1 in")
body8 = doc.addObject("PartDesign::Body", "Body007")

# Sketch on XY plane
sketch12 = body8.newObject("Sketcher::SketchObject", "Sketch011")
sketch12.AttachmentSupport = (doc.getObject("XY_Plane007"), [""])
sketch12.MapMode = "FlatFace"
sketch12.addGeometry([
    Part.LineSegment(Vector(225.532861, 289.810411, 0), Vector(225.532861, 219.960411, 0)),
    Part.LineSegment(Vector(225.532861, 219.960411, 0), Vector(327.132861, 219.960411, 0)),
    Part.LineSegment(Vector(327.132861, 219.960411, 0), Vector(327.132861, 289.810411, 0)),
    Part.LineSegment(Vector(327.132861, 289.810411, 0), Vector(225.532861, 289.810411, 0)),
], False)
sketch12.addConstraint([
    Sketcher.Constraint("Coincident", 0, 2, 1, 1),
    Sketcher.Constraint("Coincident", 1, 2, 2, 1),
    Sketcher.Constraint("Coincident", 2, 2, 3, 1),
    Sketcher.Constraint("Coincident", 3, 2, 0, 1),
    Sketcher.Constraint("Vertical", 0),
    Sketcher.Constraint("Horizontal", 1),
    Sketcher.Constraint("Vertical", 2),
    Sketcher.Constraint("Horizontal", 3),
    Sketcher.Constraint("DistanceX", 1, 1, 1, 2, Q("4 in")),
    Sketcher.Constraint("DistanceY", 0, 2, 0, 1, Q("2.75 in")),
    Sketcher.Constraint("DistanceX", -1, 1, 0, 2, Q("225.532861 mm")),
    Sketcher.Constraint("DistanceY", -1, 1, 0, 2, Q("219.960411 mm")),
])
pad10 = body8.newObject("PartDesign::Pad", "Pad009")
pad10.Profile = sketch12
pad10.Length = Q("0.275 in")
body9 = doc.addObject("PartDesign::Body", "Body008")

# Sketch on XY plane
sketch13 = body9.newObject("Sketcher::SketchObject", "Sketch012")
sketch13.AttachmentSupport = (doc.getObject("XY_Plane008"), [""])
sketch13.MapMode = "FlatFace"
sketch13.addGeometry(Part.Circle(Vector(1326.516509, -73.231712, 0), Vector(0, 0, 1), 8.334375), False)
sketch13.addConstraint([
    Sketcher.Constraint("Diameter", 0, Q("0.65625 in")),
    Sketcher.Constraint("DistanceX", -1, 1, 0, 3, Q("1326.516509 mm")),
    Sketcher.Constraint("DistanceY", 0, 3, -1, 1, Q("73.231712 mm")),
])
pad11 = body9.newObject("PartDesign::Pad", "Pad010")
pad11.Profile = sketch13
pad11.Length = 2.06375

# Sketch on XY plane
sketch14 = body9.newObject("Sketcher::SketchObject", "Sketch013")
sketch14.AttachmentSupport = (doc.getObject("XY_Plane008"), [""])
sketch14.MapMode = "FlatFace"
sketch14.AttachmentOffset = App.Placement(Vector(0, 0, 2.06375), App.Rotation())
sketch14.addGeometry(Part.Circle(Vector(1326.516509, -73.231712, 0), Vector(0, 0, 1), 3.96875), False)
sketch14.addConstraint([
    Sketcher.Constraint("Diameter", 0, Q("0.3125 in")),
    Sketcher.Constraint("DistanceX", -1, 1, 0, 3, Q("1326.516509 mm")),
    Sketcher.Constraint("DistanceY", 0, 3, -1, 1, Q("73.231712 mm")),
])
pad12 = body9.newObject("PartDesign::Pad", "Pad011")
pad12.Profile = sketch14
pad12.Length = Q("0.125 in")
pad12.TaperAngle = -20

# Sketch on XY plane
sketch15 = body9.newObject("Sketcher::SketchObject", "Sketch014")
sketch15.AttachmentSupport = (doc.getObject("XY_Plane008"), [""])
sketch15.MapMode = "FlatFace"
sketch15.AttachmentOffset = App.Placement(Vector(0, 0, 5.23875), App.Rotation())
sketch15.addGeometry(Part.Circle(Vector(1326.516509, -73.231712, 0), Vector(0, 0, 1), 2.69875), False)
sketch15.addConstraint([
    Sketcher.Constraint("Diameter", 0, Q("0.2125 in")),
    Sketcher.Constraint("DistanceX", -1, 1, 0, 3, Q("1326.516509 mm")),
    Sketcher.Constraint("DistanceY", 0, 3, -1, 1, Q("73.231712 mm")),
])
pad13 = body9.newObject("PartDesign::Pad", "Pad012")
pad13.Profile = sketch15
pad13.Length = Q("1.5 in")

# Sketch on XY plane
sketch16 = body9.newObject("Sketcher::SketchObject", "Sketch015")
sketch16.AttachmentSupport = (doc.getObject("XY_Plane008"), [""])
sketch16.MapMode = "FlatFace"
sketch16.AttachmentOffset = App.Placement(Vector(0, 0, 43.33875), App.Rotation())
sketch16.addGeometry([
    Part.Circle(Vector(1326.516509, -73.231712, 0), Vector(0, 0, 1), 6.35),
    Part.Circle(Vector(1326.516509, -73.231712, 0), Vector(0, 0, 1), 2.69875),
], False)
sketch16.addConstraint([
    Sketcher.Constraint("Coincident", 1, 3, 0, 3),
    Sketcher.Constraint("Diameter", 0, Q("0.5 in")),
    Sketcher.Constraint("Diameter", 1, Q("0.2125 in")),
    Sketcher.Constraint("DistanceX", -1, 1, 0, 3, Q("1326.516509 mm")),
    Sketcher.Constraint("DistanceY", 0, 3, -1, 1, Q("73.231712 mm")),
])
pad14 = body9.newObject("PartDesign::Pad", "Pad013")
pad14.Profile = sketch16
pad14.Length = Q("1.125 in")
pad14.Reversed = True
body10 = doc.addObject("PartDesign::Body", "Body009")
body10.AllowCompound = True

# Sketch on XY plane
sketch17 = body10.newObject("Sketcher::SketchObject", "Sketch016")
sketch17.AttachmentSupport = (doc.getObject("XY_Plane009"), [""])
sketch17.MapMode = "FlatFace"
sketch17.addGeometry([
    Part.Circle(Vector(231.851193, 13.419142, 0), Vector(0, 0, 1), 1.5875),  # 0
    Part.Circle(Vector(327.091193, 13.419142, 0), Vector(0, 0, 1), 1.5875),  # 1
    Part.Circle(Vector(231.851193, 57.869142, 0), Vector(0, 0, 1), 1.5875),  # 2
    Part.Circle(Vector(327.091193, 57.869142, 0), Vector(0, 0, 1), 1.5875),  # 3
    Part.Circle(Vector(313.132861, 224.036411, 0), Vector(0, 0, 1), 1.5875),  # 4
    Part.Circle(Vector(313.132861, 285.746411, 0), Vector(0, 0, 1), 1.5875),  # 5
    Part.Circle(Vector(236.532861, 224.036411, 0), Vector(0, 0, 1), 1.5875),  # 6
    Part.Circle(Vector(236.532861, 285.746411, 0), Vector(0, 0, 1), 1.5875),  # 7
], False)
sketch17.addConstraint([
    Sketcher.Constraint("Equal", 0, 1),
    Sketcher.Constraint("Equal", 1, 2),
    Sketcher.Constraint("Equal", 2, 3),
    Sketcher.Constraint("Equal", 3, 4),
    Sketcher.Constraint("Equal", 4, 5),
    Sketcher.Constraint("Equal", 5, 6),
    Sketcher.Constraint("Equal", 6, 7),
    Sketcher.Constraint("Horizontal", 0, 3, 1, 3),
    Sketcher.Constraint("Horizontal", 2, 3, 3, 3),
    Sketcher.Constraint("Horizontal", 4, 3, 6, 3),
    Sketcher.Constraint("Horizontal", 5, 3, 7, 3),
    Sketcher.Constraint("Vertical", 0, 3, 2, 3),
    Sketcher.Constraint("Vertical", 1, 3, 3, 3),
    Sketcher.Constraint("Vertical", 4, 3, 5, 3),
    Sketcher.Constraint("Vertical", 6, 3, 7, 3),
    Sketcher.Constraint("Diameter", 0, Q("0.125 in")),
    Sketcher.Constraint("DistanceY", 0, 3, 2, 3, Q("1.75 in")),
    Sketcher.Constraint("DistanceX", 0, 3, 1, 3, Q("95.24 mm")),
    Sketcher.Constraint("DistanceY", 4, 3, 5, 3, Q("61.71 mm")),
    Sketcher.Constraint("DistanceX", 6, 3, 4, 3, Q("76.6 mm")),
    Sketcher.Constraint("DistanceX", -1, 1, 4, 3, Q("313.132861 mm")),
    Sketcher.Constraint("DistanceY", -1, 1, 4, 3, Q("224.036411 mm")),
    Sketcher.Constraint("DistanceX", 4, 3, 3, 3, Q("13.958332 mm")),
    Sketcher.Constraint("DistanceY", 3, 3, 4, 3, Q("166.167269 mm")),
])
pad15 = body10.newObject("PartDesign::Pad", "Pad014")
pad15.Profile = sketch17
pad15.Length = 460.613738
doc.recompute()

body11 = doc.addObject("PartDesign::Body", "Body010")
body11.BaseFeature = body10
boolean = body7.newObject("PartDesign::Boolean", "Boolean")
boolean.Type = "Cut"
boolean.addObjects([body11])
doc.recompute()

boolean2 = body8.newObject("PartDesign::Boolean", "Boolean001")
boolean2.Type = "Cut"
boolean2.addObjects([body10])
body12 = doc.addObject("PartDesign::Body", "Body011")

# Sketch on XY plane
sketch18 = body12.newObject("Sketcher::SketchObject", "Sketch017")
sketch18.AttachmentSupport = (doc.getObject("XY_Plane011"), [""])
sketch18.MapMode = "FlatFace"
sketch18.addGeometry(Part.Circle(Vector(-541.405618, 223.967224, 0), Vector(0, 0, 1), 12.7), False)
sketch18.addConstraint([
    Sketcher.Constraint("Diameter", 0, Q("1 in")),
    Sketcher.Constraint("DistanceX", 0, 3, -1, 1, Q("541.405618 mm")),
    Sketcher.Constraint("DistanceY", -1, 1, 0, 3, Q("223.967224 mm")),
])
pad16 = body12.newObject("PartDesign::Pad", "Pad015")
pad16.Profile = sketch18
pad16.Length = Q("0.25 in")

# Sketch on XY plane
sketch19 = body12.newObject("Sketcher::SketchObject", "Sketch018")
sketch19.AttachmentSupport = (doc.getObject("XY_Plane011"), [""])
sketch19.MapMode = "FlatFace"
sketch19.AttachmentOffset = App.Placement(Vector(0, 0, 0.25 * 25.4), App.Rotation())
sketch19.addGeometry(Part.Circle(Vector(-541.405618, 223.967224, 0), Vector(0, 0, 1), 4.7625), False)
sketch19.addConstraint([
    Sketcher.Constraint("Diameter", 0, Q("0.375 in")),
    Sketcher.Constraint("DistanceX", 0, 3, -1, 1, Q("541.405618 mm")),
    Sketcher.Constraint("DistanceY", -1, 1, 0, 3, Q("223.967224 mm")),
])
pocket3 = body12.newObject("PartDesign::Pocket", "Pocket002")
pocket3.Profile = sketch19
pocket3.Length = Q("0.125 in")
doc.recompute()

fillet = body12.newObject("PartDesign::Fillet", "Fillet")
fillet.Base = (pocket3, edges_at(pocket3, [(-554.106, 223.967, 6.35)]))
fillet.Radius = Q("0.2 in")
body13 = doc.addObject("PartDesign::Body", "Body012")

# Sketch on XZ plane
sketch20 = body13.newObject("Sketcher::SketchObject", "Sketch019")
sketch20.AttachmentSupport = (doc.getObject("XZ_Plane012"), [""])
sketch20.MapMode = "FlatFace"
sketch20.addGeometry([
    Part.LineSegment(Vector(615.098518, 711.10398, 0), Vector(615.098518, 586.10398, 0)),
    Part.LineSegment(Vector(615.098518, 586.10398, 0), Vector(891.098518, 586.10398, 0)),
    Part.LineSegment(Vector(891.098518, 586.10398, 0), Vector(891.098518, 711.10398, 0)),
    Part.LineSegment(Vector(891.098518, 711.10398, 0), Vector(615.098518, 711.10398, 0)),
], False)
sketch20.addConstraint([
    Sketcher.Constraint("Coincident", 0, 2, 1, 1),
    Sketcher.Constraint("Coincident", 1, 2, 2, 1),
    Sketcher.Constraint("Coincident", 2, 2, 3, 1),
    Sketcher.Constraint("Coincident", 3, 2, 0, 1),
    Sketcher.Constraint("Vertical", 0),
    Sketcher.Constraint("Horizontal", 1),
    Sketcher.Constraint("Vertical", 2),
    Sketcher.Constraint("Horizontal", 3),
    Sketcher.Constraint("DistanceX", 1, 1, 1, 2, Q("276 mm")),
    Sketcher.Constraint("DistanceY", 0, 2, 0, 1, Q("125 mm")),
    Sketcher.Constraint("DistanceY", -1, 1, 0, 2, Q("586.10398 mm")),
    Sketcher.Constraint("DistanceX", -1, 1, 0, 2, Q("615.098518 mm")),
])
pad17 = body13.newObject("PartDesign::Pad", "Pad016")
pad17.Profile = sketch20
pad17.Length = 30

doc.recompute()
